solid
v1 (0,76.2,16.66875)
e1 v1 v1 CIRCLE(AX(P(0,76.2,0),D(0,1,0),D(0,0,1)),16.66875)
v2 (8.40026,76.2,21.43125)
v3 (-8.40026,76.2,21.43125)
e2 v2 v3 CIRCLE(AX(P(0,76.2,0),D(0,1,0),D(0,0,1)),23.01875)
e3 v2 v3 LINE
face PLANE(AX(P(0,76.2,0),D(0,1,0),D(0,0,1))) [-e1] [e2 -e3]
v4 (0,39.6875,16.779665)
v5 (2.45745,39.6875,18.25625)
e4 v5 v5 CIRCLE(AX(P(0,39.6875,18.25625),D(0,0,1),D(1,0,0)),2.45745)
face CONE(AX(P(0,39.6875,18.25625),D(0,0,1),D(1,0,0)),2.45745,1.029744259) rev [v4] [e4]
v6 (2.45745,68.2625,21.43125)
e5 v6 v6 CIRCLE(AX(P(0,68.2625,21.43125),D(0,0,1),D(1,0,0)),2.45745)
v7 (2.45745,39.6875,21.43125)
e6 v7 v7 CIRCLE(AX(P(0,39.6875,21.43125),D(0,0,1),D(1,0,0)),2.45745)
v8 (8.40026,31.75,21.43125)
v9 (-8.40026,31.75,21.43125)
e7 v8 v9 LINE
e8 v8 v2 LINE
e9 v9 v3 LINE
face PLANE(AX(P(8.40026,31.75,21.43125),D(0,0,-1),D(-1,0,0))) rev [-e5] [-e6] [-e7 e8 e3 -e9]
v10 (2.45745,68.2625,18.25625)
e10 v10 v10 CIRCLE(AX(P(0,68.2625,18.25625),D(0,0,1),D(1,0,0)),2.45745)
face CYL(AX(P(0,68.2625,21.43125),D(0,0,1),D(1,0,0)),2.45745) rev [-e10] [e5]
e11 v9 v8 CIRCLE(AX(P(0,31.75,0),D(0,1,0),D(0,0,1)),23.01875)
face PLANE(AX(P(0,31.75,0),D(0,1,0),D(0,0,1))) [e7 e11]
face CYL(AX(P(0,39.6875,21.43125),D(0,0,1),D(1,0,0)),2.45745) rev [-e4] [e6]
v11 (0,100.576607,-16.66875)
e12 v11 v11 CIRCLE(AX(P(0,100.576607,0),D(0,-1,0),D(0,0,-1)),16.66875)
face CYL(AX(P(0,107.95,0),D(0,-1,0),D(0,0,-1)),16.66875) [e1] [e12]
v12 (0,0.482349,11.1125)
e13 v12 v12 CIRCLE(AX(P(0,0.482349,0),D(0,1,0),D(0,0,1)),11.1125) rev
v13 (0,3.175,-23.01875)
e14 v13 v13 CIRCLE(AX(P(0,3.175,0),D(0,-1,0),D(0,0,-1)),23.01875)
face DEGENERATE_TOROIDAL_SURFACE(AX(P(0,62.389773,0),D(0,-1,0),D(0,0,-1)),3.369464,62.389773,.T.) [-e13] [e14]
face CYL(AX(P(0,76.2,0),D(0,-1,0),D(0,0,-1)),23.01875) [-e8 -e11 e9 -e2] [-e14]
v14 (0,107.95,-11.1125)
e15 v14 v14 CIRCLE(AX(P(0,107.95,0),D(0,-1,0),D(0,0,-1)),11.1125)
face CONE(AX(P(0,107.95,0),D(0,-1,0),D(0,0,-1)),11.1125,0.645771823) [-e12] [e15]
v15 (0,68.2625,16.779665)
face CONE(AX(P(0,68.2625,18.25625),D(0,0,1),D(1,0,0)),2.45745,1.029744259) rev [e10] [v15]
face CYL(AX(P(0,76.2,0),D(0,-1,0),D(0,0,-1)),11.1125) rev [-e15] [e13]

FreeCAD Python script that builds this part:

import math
import FreeCAD as App
import Part
import Sketcher
from FreeCAD import Vector
Q = App.Units.Quantity


def add_polygon(sketch, points):
    """Adds a closed chain of lines whose ends are joined by coincident constraints."""
    first, n = sketch.GeometryCount, len(points)
    for a, b in zip(points, points[1:] + points[:1]):
        sketch.addGeometry(Part.LineSegment(App.Vector(*a, 0), App.Vector(*b, 0)), False)
    for i in range(n):
        sketch.addConstraint(Sketcher.Constraint("Coincident", first + i, 2, first + (i + 1) % n, 1))

doc = App.newDocument("Part")
body = doc.addObject("PartDesign::Body", "Body")

# Sketch on XZ plane
sketch1 = doc.addObject("Sketcher::SketchObject", "Sketch")
body.addObject(sketch1)
sketch1.AttachmentSupport = (doc.XZ_Plane, [""])
sketch1.MapMode = "FlatFace"
sketch1.addGeometry([
    Part.Circle(Vector(0, 0, 0), Vector(0, 0, 1), 23),
    Part.Circle(Vector(0, 0, 0), Vector(0, 0, 1), 11),
], False)
sketch1.addConstraint([
    Sketcher.Constraint("Coincident", 0, 3, -1, 1),
    Sketcher.Constraint("Coincident", 1, 3, -1, 1),
    Sketcher.Constraint("Diameter", 0, Q("1.8125 in")),
    Sketcher.Constraint("Diameter", 1, Q("0.875 in")),
])
pad1 = doc.addObject("PartDesign::Pad", "Pad")
body.addObject(pad1)
pad1.Profile = sketch1
pad1.Length = Q("3 in")
pad1.Reversed = True

# Sketch on XZ plane
sketch2 = doc.addObject("Sketcher::SketchObject", "Sketch001")
body.addObject(sketch2)
sketch2.AttachmentSupport = (doc.XZ_Plane, [""])
sketch2.MapMode = "FlatFace"
sketch2.AttachmentOffset = App.Placement(Vector(0, 0, -3 * 25.4), App.Rotation())
sketch2.addGeometry([
    Part.Circle(Vector(0, 0, 0), Vector(0, 0, 1), 17),
    Part.Circle(Vector(0, 0, 0), Vector(0, 0, 1), 11),
], False)
sketch2.addConstraint([
    Sketcher.Constraint("Coincident", 0, 3, -1, 1),
    Sketcher.Constraint("Coincident", 1, 3, -1, 1),
    Sketcher.Constraint("Diameter", 0, Q("1.3125 in")),
    Sketcher.Constraint("Diameter", 1, Q("0.875 in")),
])
pad2 = doc.addObject("PartDesign::Pad", "Pad001")
body.addObject(pad2)
pad2.Profile = sketch2
pad2.Length = Q("1.25 in")
pad2.Reversed = True

# Sketch on YZ plane
sketch3 = doc.addObject("Sketcher::SketchObject", "Sketch002")
body.addObject(sketch3)
sketch3.AttachmentSupport = (doc.YZ_Plane, [""])
sketch3.MapMode = "FlatFace"
add_polygon(sketch3, [(101, -17), (108, -17), (108, -11)])  # lines 0-2
sketch3.addConstraint([
    Sketcher.Constraint("Horizontal", 0),
    Sketcher.Constraint("Vertical", 1),
    Sketcher.Constraint("Angle", 2, Q("-143 deg")),
    Sketcher.Constraint("DistanceY", 1, 1, 1, 2, Q("0.21875 in")),
    Sketcher.Constraint("DistanceX", -1, 1, 0, 2, Q("4.25 in")),
    Sketcher.Constraint("DistanceY", 0, 2, -1, 1, Q("0.65625 in")),
])
groove = doc.addObject("PartDesign::Groove", "Groove")
body.addObject(groove)
groove.Profile = sketch3
groove.ReferenceAxis = (sketch3, ["H_Axis"])
groove.Angle = 360

# Sketch on XZ plane
sketch4 = doc.addObject("Sketcher::SketchObject", "Sketch003")
body.addObject(sketch4)
sketch4.AttachmentSupport = (doc.XZ_Plane, [""])
sketch4.MapMode = "FlatFace"
sketch4.AttachmentOffset = App.Placement(Vector(0, 0, -3 * 25.4), App.Rotation())
sketch4.addGeometry([
    Part.LineSegment(Vector(8, 21, 0), Vector(-8, 21, 0)),
    Part.ArcOfCircle(Part.Circle(Vector(0, 0, 0), Vector(0, 0, 1), 23), math.radians(69), math.radians(111)),
], False)
sketch4.addConstraint([
    Sketcher.Constraint("Coincident", 0, 1, 1, 1),
    Sketcher.Constraint("Coincident", 1, 2, 0, 2),
    Sketcher.Constraint("Horizontal", 0),
    Sketcher.Constraint("Coincident", 1, 3, -1, 1),
    Sketcher.Constraint("Radius", 1, Q("0.90625 in")),
    Sketcher.Constraint("DistanceY", -1, 1, 0, 1, Q("0.84375 in")),
])
pocket1 = doc.addObject("PartDesign::Pocket", "Pocket")
body.addObject(pocket1)
pocket1.Profile = sketch4
pocket1.Length = Q("1.75 in")
pocket1.Reversed = True

# Sketch on XY plane
sketch5 = doc.addObject("Sketcher::SketchObject", "Sketch004")
body.addObject(sketch5)
sketch5.AttachmentSupport = (doc.XY_Plane, [""])
sketch5.MapMode = "FlatFace"
sketch5.addGeometry([
    Part.LineSegment(Vector(0, 0, 0), Vector(-3.4, 0, 0)),  # 0
    Part.ArcOfCircle(Part.Circle(Vector(-3.4, 62.4, 0), Vector(0, 0, 1), 62.4), math.radians(-108.36), math.radians(-90)),  # 1
    Part.LineSegment(Vector(-23, 3.2, 0), Vector(-23, -4.5, 0)),  # 2
    Part.LineSegment(Vector(-23, -4.5, 0), Vector(0, -4.5, 0)),  # 3
    Part.LineSegment(Vector(0, -4.5, 0), Vector(0, 0, 0)),  # 4
], False)
sketch5.addConstraint([
    Sketcher.Constraint("Tangent", 0, 2, 1, 2),
    Sketcher.Constraint("Coincident", 1, 1, 2, 1),
    Sketcher.Constraint("Coincident", 2, 2, 3, 1),
    Sketcher.Constraint("Coincident", 3, 2, 4, 1),
    Sketcher.Constraint("Coincident", 4, 2, 0, 1),
    Sketcher.Constraint("Horizontal", 0),
    Sketcher.Constraint("Vertical", 2),
    Sketcher.Constraint("Horizontal", 3),
    Sketcher.Constraint("Vertical", 4),
    Sketcher.Constraint("Coincident", 4, 2, -1, 1),
    Sketcher.Constraint("DistanceX", 3, 1, 3, 2, Q("0.90625 in")),
    Sketcher.Constraint("DistanceY", -1, 1, 1, 1, Q("0.125 in")),
    Sketcher.Constraint("Radius", 1, 62.389773),
    Sketcher.Constraint("DistanceY", 2, 2, 2, 1, 7.644484),
])
groove2 = doc.addObject("PartDesign::Groove", "Groove001")
body.addObject(groove2)
groove2.Profile = sketch5
groove2.ReferenceAxis = (sketch5, ["V_Axis"])
groove2.Angle = 360

# Sketch on XY plane
sketch6 = doc.addObject("Sketcher::SketchObject", "Sketch005")
body.addObject(sketch6)
sketch6.AttachmentSupport = (doc.XY_Plane, [""])
sketch6.MapMode = "FlatFace"
sketch6.AttachmentOffset = App.Placement(Vector(0, 0, 0.84375 * 25.4), App.Rotation())
sketch6.addGeometry([
    Part.Circle(Vector(0, 68.3, 0), Vector(0, 0, 1), 2.5),
    Part.Circle(Vector(0, 39.7, 0), Vector(0, 0, 1), 2.5),
], False)
sketch6.addConstraint([
    Sketcher.Constraint("Equal", 0, 1),
    Sketcher.Constraint("PointOnObject", 0, 3, -2),
    Sketcher.Constraint("PointOnObject", 1, 3, -2),
    Sketcher.Constraint("Diameter", 0, Q("0.1935 in")),
    Sketcher.Constraint("DistanceY", -1, 1, 0, 3, Q("2.6875 in")),
    Sketcher.Constraint("DistanceY", -1, 1, 1, 3, Q("1.5625 in")),
])
doc.recompute()
hole = doc.addObject("PartDesign::Hole", "Hole")
body.addObject(hole)
hole.Profile = sketch6
hole.ThreadType = "None"
hole.Diameter = Q("0.1935 in")
hole.DepthType = "Dimension"
hole.Depth = Q("0.125 in")
hole.DrillPoint = "Angled"
hole.DrillPointAngle = 118

doc.recompute()
